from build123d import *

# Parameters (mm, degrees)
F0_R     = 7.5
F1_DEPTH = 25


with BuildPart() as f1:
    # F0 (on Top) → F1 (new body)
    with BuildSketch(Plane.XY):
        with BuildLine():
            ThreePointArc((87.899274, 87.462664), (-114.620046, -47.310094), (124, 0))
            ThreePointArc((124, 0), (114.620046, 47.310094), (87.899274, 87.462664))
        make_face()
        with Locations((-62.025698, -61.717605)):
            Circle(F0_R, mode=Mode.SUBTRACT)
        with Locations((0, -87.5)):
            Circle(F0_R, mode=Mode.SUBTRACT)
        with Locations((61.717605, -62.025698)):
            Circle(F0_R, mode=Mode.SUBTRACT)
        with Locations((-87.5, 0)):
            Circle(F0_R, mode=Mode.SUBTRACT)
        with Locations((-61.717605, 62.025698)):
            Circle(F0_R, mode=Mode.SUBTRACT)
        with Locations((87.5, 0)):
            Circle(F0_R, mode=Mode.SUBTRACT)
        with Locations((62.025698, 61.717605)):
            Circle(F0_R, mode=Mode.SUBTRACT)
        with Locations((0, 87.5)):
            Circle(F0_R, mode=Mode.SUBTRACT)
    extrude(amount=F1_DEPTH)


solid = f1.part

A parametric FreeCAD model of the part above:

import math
import FreeCAD as App
import Part
import Sketcher

V = App.Vector
Q = App.Units.Quantity

doc = App.newDocument("Part")
body = doc.addObject("PartDesign::Body", "Body")

# Sketch on XY plane
sketch1 = doc.addObject("Sketcher::SketchObject", "Sketch")
body.addObject(sketch1)
sketch1.AttachmentSupport = (doc.XY_Plane, [""])
sketch1.MapMode = "FlatFace"
sketch1.addGeometry(Part.ArcOfCircle(Part.Circle(V(0, 0, 0), V(0, 0, 1), 124), math.radians(45), math.radians(360)), False)
sketch1.addGeometry(Part.ArcOfCircle(Part.Circle(V(0, 0, 0), V(0, 0, 1), 124), math.radians(0), math.radians(45)), False)
sketch1.addGeometry(Part.Circle(V(-62, -62, 0), V(0, 0, 1), 8), False)
sketch1.addGeometry(Part.Circle(V(0, -88, 0), V(0, 0, 1), 8), False)
sketch1.addGeometry(Part.Circle(V(62, -62, 0), V(0, 0, 1), 8), False)
sketch1.addGeometry(Part.Circle(V(-88, 0, 0), V(0, 0, 1), 8), False)
sketch1.addGeometry(Part.Circle(V(-62, 62, 0), V(0, 0, 1), 8), False)
sketch1.addGeometry(Part.Circle(V(88, 0, 0), V(0, 0, 1), 8), False)
sketch1.addGeometry(Part.Circle(V(0, 88, 0), V(0, 0, 1), 8), False)
sketch1.addGeometry(Part.Circle(V(62, 62, 0), V(0, 0, 1), 8), False)
sketch1.addConstraint(Sketcher.Constraint("Tangent", 0, 1, 1, 2))
sketch1.addConstraint(Sketcher.Constraint("Coincident", 1, 1, 0, 2))
sketch1.addConstraint(Sketcher.Constraint("Coincident", 0, 3, -1, 1))
sketch1.addConstraint(Sketcher.Constraint("Equal", 2, 3))
sketch1.addConstraint(Sketcher.Constraint("Equal", 3, 4))
sketch1.addConstraint(Sketcher.Constraint("Equal", 4, 5))
sketch1.addConstraint(Sketcher.Constraint("Equal", 5, 6))
sketch1.addConstraint(Sketcher.Constraint("Equal", 6, 7))
sketch1.addConstraint(Sketcher.Constraint("Equal", 7, 8))
sketch1.addConstraint(Sketcher.Constraint("Equal", 8, 9))
sketch1.addConstraint(Sketcher.Constraint("Symmetric", 4, 3, 6, 3, -1, 1))
sketch1.addConstraint(Sketcher.Constraint("Symmetric", 5, 3, 7, 3, -1, 1))
sketch1.addConstraint(Sketcher.Constraint("Symmetric", 3, 3, 8, 3, -1, 1))
sketch1.addConstraint(Sketcher.Constraint("Symmetric", 2, 3, 9, 3, -1, 1))
sketch1.addConstraint(Sketcher.Constraint("PointOnObject", 3, 3, -2))
sketch1.addConstraint(Sketcher.Constraint("PointOnObject", 5, 3, -1))
sketch1.addConstraint(Sketcher.Constraint("PointOnObject", 1, 1, -1))
sketch1.addConstraint(Sketcher.Constraint("Diameter", 2, Q("15 mm")))
sketch1.addConstraint(Sketcher.Constraint("Radius", 0, Q("124 mm")))
sketch1.addConstraint(Sketcher.Constraint("DistanceY", 3, 3, -1, 1, Q("87.5 mm")))
sketch1.addConstraint(Sketcher.Constraint("DistanceX", 5, 3, -1, 1, Q("87.5 mm")))
sketch1.addConstraint(Sketcher.Constraint("DistanceX", 2, 3, 0, 3, Q("62.025698 mm")))
sketch1.addConstraint(Sketcher.Constraint("DistanceY", 1, 3, 6, 3, Q("62.025699 mm")))
sketch1.addConstraint(Sketcher.Constraint("DistanceY", 9, 3, 0, 1, Q("25.745059 mm")))
sketch1.addConstraint(Sketcher.Constraint("DistanceY", 2, 3, -1, 1, Q("61.717605 mm")))
sketch1.addConstraint(Sketcher.Constraint("DistanceX", -1, 1, 4, 3, Q("61.717605 mm")))
pad1 = doc.addObject("PartDesign::Pad", "Pad")
body.addObject(pad1)
pad1.Profile = sketch1
pad1.Length = 25

doc.recompute()
